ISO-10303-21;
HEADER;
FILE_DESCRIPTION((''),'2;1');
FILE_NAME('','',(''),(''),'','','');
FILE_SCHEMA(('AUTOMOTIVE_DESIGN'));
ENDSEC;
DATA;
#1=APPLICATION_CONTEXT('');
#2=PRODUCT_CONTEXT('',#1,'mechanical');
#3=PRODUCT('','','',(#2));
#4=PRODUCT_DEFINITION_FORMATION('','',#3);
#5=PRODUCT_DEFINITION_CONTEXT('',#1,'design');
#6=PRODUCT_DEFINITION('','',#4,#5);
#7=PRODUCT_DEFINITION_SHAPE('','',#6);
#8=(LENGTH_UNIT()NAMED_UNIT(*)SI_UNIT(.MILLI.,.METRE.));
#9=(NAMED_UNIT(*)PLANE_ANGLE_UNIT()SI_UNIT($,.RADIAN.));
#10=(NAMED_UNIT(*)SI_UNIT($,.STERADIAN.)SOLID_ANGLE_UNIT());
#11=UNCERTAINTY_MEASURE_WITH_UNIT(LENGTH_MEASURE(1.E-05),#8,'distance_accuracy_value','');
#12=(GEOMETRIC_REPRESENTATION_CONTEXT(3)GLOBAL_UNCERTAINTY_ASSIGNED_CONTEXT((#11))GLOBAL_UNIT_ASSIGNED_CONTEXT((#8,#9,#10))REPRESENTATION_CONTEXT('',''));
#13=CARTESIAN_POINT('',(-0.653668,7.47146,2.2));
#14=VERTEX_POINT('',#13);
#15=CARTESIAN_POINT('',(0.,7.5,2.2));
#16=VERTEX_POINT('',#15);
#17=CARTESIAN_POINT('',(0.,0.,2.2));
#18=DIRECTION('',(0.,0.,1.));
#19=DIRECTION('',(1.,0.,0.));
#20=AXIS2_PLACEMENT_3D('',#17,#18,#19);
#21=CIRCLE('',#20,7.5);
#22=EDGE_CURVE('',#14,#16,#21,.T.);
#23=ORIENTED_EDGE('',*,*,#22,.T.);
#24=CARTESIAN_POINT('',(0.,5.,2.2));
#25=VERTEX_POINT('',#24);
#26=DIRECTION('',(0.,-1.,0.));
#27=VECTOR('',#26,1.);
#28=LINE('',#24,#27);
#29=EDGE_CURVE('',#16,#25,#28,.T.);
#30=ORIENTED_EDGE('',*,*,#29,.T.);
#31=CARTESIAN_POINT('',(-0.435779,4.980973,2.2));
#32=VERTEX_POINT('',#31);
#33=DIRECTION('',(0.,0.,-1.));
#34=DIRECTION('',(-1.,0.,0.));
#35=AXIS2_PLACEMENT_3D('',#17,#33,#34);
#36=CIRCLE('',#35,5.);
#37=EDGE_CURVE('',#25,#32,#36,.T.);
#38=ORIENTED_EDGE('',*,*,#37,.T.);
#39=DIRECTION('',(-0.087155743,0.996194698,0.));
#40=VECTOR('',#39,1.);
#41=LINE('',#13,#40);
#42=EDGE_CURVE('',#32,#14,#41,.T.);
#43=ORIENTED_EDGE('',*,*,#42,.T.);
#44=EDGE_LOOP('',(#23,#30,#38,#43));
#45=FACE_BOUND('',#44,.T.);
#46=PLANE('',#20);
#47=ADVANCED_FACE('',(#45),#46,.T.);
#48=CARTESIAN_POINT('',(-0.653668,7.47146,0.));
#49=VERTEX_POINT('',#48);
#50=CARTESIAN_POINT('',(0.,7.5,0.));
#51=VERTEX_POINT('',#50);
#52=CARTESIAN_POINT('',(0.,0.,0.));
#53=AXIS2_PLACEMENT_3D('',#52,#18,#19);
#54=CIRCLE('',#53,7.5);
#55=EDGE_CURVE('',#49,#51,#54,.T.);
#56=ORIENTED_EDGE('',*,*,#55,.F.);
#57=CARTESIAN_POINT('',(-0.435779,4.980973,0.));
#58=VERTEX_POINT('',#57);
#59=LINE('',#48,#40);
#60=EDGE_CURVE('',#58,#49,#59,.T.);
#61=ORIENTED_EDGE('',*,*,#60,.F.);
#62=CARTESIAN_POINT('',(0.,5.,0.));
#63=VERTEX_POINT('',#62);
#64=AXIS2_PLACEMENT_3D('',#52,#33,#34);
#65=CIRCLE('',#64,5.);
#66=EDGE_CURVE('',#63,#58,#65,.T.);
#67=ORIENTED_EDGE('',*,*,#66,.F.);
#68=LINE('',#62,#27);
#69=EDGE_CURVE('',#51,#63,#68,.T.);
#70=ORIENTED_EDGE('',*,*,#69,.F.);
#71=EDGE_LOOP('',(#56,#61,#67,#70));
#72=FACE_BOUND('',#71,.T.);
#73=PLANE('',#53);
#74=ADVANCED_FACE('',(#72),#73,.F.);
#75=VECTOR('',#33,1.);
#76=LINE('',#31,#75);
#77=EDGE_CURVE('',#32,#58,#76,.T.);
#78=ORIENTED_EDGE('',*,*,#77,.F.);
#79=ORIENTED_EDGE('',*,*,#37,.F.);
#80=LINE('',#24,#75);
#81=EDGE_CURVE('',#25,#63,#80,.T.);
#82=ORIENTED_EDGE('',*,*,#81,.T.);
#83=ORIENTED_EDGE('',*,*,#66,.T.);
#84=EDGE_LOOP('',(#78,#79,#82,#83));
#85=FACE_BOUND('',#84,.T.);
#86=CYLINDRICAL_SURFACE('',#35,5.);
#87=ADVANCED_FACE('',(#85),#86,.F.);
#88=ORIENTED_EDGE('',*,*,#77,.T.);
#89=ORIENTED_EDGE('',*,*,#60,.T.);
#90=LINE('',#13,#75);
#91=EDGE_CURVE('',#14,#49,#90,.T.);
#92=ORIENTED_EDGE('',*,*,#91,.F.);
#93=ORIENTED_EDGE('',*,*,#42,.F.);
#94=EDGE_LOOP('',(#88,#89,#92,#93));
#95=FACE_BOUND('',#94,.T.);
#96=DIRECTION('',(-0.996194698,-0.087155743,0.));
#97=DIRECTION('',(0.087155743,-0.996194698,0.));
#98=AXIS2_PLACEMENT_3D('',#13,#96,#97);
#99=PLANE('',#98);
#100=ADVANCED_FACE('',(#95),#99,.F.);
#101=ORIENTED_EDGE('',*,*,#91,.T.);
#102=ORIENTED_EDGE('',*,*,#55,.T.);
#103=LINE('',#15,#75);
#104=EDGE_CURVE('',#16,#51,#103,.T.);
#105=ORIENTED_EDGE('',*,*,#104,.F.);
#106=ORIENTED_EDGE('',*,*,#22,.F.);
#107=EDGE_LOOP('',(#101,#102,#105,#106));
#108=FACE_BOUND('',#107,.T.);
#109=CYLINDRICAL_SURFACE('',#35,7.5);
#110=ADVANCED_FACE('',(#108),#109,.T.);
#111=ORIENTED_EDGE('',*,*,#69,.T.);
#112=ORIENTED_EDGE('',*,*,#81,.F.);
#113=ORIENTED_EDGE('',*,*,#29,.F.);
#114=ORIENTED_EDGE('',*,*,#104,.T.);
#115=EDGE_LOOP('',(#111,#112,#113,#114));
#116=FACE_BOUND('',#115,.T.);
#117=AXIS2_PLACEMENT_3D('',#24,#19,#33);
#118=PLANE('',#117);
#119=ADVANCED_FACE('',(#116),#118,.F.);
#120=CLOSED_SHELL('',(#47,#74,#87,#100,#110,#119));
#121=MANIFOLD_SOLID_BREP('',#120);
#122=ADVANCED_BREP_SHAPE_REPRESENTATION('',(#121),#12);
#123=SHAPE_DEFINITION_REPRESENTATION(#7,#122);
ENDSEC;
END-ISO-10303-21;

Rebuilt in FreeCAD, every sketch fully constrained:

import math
import FreeCAD as App
import Part
import Sketcher
from FreeCAD import Vector
Q = App.Units.Quantity

doc = App.newDocument("Part")
body = doc.addObject("PartDesign::Body", "Body")

# Sketch on XY plane
sketch1 = doc.addObject("Sketcher::SketchObject", "Sketch")
body.addObject(sketch1)
sketch1.AttachmentSupport = (doc.XY_Plane, [""])
sketch1.MapMode = "FlatFace"
sketch1.addGeometry(Part.LineSegment(Vector(0, 7.5, 0), Vector(0, 5, 0)), False)
sketch1.addGeometry(Part.ArcOfCircle(Part.Circle(Vector(0, 0, 0), Vector(0, 0, 1), 5), math.radians(95), math.radians(450)), False)
sketch1.addGeometry(Part.LineSegment(Vector(-0.44, 4.98, 0), Vector(-0.65, 7.47, 0)), False)
sketch1.addGeometry(Part.ArcOfCircle(Part.Circle(Vector(0, 0, 0), Vector(0, 0, 1), 7.5), math.radians(95), math.radians(450)), False)
sketch1.addConstraint(Sketcher.Constraint("Coincident", 0, 2, 1, 2))
sketch1.addConstraint(Sketcher.Constraint("Coincident", 1, 1, 2, 1))
sketch1.addConstraint(Sketcher.Constraint("Coincident", 2, 2, 3, 1))
sketch1.addConstraint(Sketcher.Constraint("Coincident", 3, 2, 0, 1))
sketch1.addConstraint(Sketcher.Constraint("Vertical", 0))
sketch1.addConstraint(Sketcher.Constraint("Coincident", 1, 3, -1, 1))
sketch1.addConstraint(Sketcher.Constraint("Coincident", 3, 3, -1, 1))
sketch1.addConstraint(Sketcher.Constraint("PointOnObject", 0, 2, -2))
sketch1.addConstraint(Sketcher.Constraint("Radius", 1, 5.0))
sketch1.addConstraint(Sketcher.Constraint("Radius", 3, 7.5))
sketch1.addConstraint(Sketcher.Constraint("Angle", 2, Q("95 deg")))
sketch1.addConstraint(Sketcher.Constraint("DistanceX", 1, 1, -1, 1, 0.435779))
pad1 = doc.addObject("PartDesign::Pad", "Pad")
body.addObject(pad1)
pad1.Profile = sketch1
pad1.Length = 2.2

doc.recompute()
